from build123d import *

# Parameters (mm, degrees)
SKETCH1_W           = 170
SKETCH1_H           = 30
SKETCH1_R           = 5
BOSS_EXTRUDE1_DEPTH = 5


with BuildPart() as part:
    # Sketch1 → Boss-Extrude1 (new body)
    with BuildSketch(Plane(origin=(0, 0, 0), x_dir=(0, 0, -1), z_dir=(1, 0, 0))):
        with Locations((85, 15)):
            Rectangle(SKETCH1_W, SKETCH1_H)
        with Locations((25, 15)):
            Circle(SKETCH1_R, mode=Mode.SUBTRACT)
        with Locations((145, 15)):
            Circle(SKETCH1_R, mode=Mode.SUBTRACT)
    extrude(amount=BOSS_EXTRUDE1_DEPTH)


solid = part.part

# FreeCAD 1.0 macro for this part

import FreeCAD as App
import Part
import Sketcher

V = App.Vector
Q = App.Units.Quantity


def add_polygon(sketch, points):
    """Adds a closed chain of lines whose ends are joined by coincident constraints."""
    first, n = sketch.GeometryCount, len(points)
    for a, b in zip(points, points[1:] + points[:1]):
        sketch.addGeometry(Part.LineSegment(App.Vector(*a, 0), App.Vector(*b, 0)), False)
    for i in range(n):
        sketch.addConstraint(Sketcher.Constraint("Coincident", first + i, 2, first + (i + 1) % n, 1))

doc = App.newDocument("Part")
body = doc.addObject("PartDesign::Body", "Body")

sketch1 = doc.addObject("Sketcher::SketchObject", "Sketch")
body.addObject(sketch1)
sketch1.AttachmentSupport = (doc.YZ_Plane, [""])
sketch1.MapMode = "FlatFace"
add_polygon(sketch1, [(30, 0), (0, 0), (0, -170), (30, -170)])
sketch1.addGeometry(Part.Circle(V(15, -25, 0), V(0, 0, 1), 5), False)
sketch1.addGeometry(Part.Circle(V(15, -145, 0), V(0, 0, 1), 5), False)
sketch1.addConstraint(Sketcher.Constraint("Horizontal", 0))
sketch1.addConstraint(Sketcher.Constraint("Vertical", 1))
sketch1.addConstraint(Sketcher.Constraint("Horizontal", 2))
sketch1.addConstraint(Sketcher.Constraint("Vertical", 3))
sketch1.addConstraint(Sketcher.Constraint("Coincident", 0, 2, -1, 1))
sketch1.addConstraint(Sketcher.Constraint("Equal", 4, 5))
sketch1.addConstraint(Sketcher.Constraint("Vertical", 4, 3, 5, 3))
sketch1.addConstraint(Sketcher.Constraint("Diameter", 4, Q("10 mm")))
sketch1.addConstraint(Sketcher.Constraint("DistanceX", 0, 2, 0, 1, Q("30 mm")))
sketch1.addConstraint(Sketcher.Constraint("DistanceY", 1, 2, 1, 1, Q("170 mm")))
sketch1.addConstraint(Sketcher.Constraint("DistanceX", -1, 1, 4, 3, Q("15 mm")))
sketch1.addConstraint(Sketcher.Constraint("DistanceY", 4, 3, -1, 1, Q("25 mm")))
sketch1.addConstraint(Sketcher.Constraint("DistanceY", 5, 3, -1, 1, Q("145 mm")))
pad1 = doc.addObject("PartDesign::Pad", "Pad")
body.addObject(pad1)
pad1.Profile = sketch1
pad1.Length = 5

doc.recompute()
